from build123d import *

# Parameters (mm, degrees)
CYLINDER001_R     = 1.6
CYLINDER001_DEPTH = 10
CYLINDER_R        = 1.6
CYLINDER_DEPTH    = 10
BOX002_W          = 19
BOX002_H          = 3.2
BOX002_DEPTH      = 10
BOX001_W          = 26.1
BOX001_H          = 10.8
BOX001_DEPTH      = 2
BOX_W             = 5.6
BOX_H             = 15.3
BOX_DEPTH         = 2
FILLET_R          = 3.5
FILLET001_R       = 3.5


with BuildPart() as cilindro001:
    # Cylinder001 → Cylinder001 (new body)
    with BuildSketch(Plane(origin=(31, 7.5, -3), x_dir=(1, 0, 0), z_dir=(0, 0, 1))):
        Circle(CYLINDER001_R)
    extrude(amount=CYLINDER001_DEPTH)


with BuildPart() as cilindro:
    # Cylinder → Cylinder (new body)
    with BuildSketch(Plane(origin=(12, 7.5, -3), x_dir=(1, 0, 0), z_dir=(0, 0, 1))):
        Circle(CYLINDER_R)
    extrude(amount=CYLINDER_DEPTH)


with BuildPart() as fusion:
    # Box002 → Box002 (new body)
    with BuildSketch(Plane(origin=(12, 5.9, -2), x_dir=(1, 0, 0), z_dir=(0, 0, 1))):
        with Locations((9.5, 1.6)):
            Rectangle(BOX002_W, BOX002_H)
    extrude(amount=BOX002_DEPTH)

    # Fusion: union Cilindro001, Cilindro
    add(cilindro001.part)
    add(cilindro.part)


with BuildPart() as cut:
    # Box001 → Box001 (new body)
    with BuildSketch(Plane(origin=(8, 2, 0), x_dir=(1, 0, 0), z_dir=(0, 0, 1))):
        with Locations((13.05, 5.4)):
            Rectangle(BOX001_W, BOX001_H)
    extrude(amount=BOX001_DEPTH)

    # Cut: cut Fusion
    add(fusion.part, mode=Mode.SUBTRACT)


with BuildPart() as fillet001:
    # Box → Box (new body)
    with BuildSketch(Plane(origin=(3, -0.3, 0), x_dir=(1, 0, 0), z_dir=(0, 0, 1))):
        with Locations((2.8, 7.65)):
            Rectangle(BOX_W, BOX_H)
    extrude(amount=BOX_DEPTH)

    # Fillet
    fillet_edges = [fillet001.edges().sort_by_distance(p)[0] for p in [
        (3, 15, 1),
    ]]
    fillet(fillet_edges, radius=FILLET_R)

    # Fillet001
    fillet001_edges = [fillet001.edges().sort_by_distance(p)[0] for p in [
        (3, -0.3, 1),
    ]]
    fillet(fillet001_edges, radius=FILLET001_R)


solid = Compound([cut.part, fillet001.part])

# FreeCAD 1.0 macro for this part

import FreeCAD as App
import Part
import Sketcher
from FreeCAD import Vector
Q = App.Units.Quantity


def edges_at(feature, points):
    """Names of the edges that pass closest to the given points."""
    edges = feature.Shape.Edges
    near = lambda p: min(range(len(edges)), key=lambda i: edges[i].distToShape(Part.Vertex(*p))[0])
    return sorted({f"Edge{near(p) + 1}" for p in points})


def add_polygon(sketch, points):
    """Adds a closed chain of lines whose ends are joined by coincident constraints."""
    first, n = sketch.GeometryCount, len(points)
    for a, b in zip(points, points[1:] + points[:1]):
        sketch.addGeometry(Part.LineSegment(App.Vector(*a, 0), App.Vector(*b, 0)), False)
    for i in range(n):
        sketch.addConstraint(Sketcher.Constraint("Coincident", first + i, 2, first + (i + 1) % n, 1))

doc = App.newDocument("Part")
body = doc.addObject("PartDesign::Body", "Body")

sketch1 = doc.addObject("Sketcher::SketchObject", "Sketch")
body.addObject(sketch1)
sketch1.AttachmentSupport = (doc.XY_Plane, [""])
sketch1.MapMode = "FlatFace"
sketch1.AttachmentOffset = App.Placement(Vector(0, 0, -3), App.Rotation())
sketch1.addGeometry(Part.Circle(Vector(31, 7.5, 0), Vector(0, 0, 1), 1.6), False)
sketch1.addConstraint([
    Sketcher.Constraint("Diameter", 0, Q("3.2 mm")),
    Sketcher.Constraint("DistanceX", -1, 1, 0, 3, Q("31 mm")),
    Sketcher.Constraint("DistanceY", -1, 1, 0, 3, Q("7.5 mm")),
])
pad1 = doc.addObject("PartDesign::Pad", "Pad")
body.addObject(pad1)
pad1.Profile = sketch1
pad1.Length = 10
body2 = doc.addObject("PartDesign::Body", "Body001")

sketch2 = doc.addObject("Sketcher::SketchObject", "Sketch001")
body2.addObject(sketch2)
sketch2.AttachmentSupport = (doc.getObject("XY_Plane001"), [""])
sketch2.MapMode = "FlatFace"
sketch2.AttachmentOffset = App.Placement(Vector(0, 0, -3), App.Rotation())
sketch2.addGeometry(Part.Circle(Vector(12, 7.5, 0), Vector(0, 0, 1), 1.6), False)
sketch2.addConstraint([
    Sketcher.Constraint("Diameter", 0, Q("3.2 mm")),
    Sketcher.Constraint("DistanceX", -1, 1, 0, 3, Q("12 mm")),
    Sketcher.Constraint("DistanceY", -1, 1, 0, 3, Q("7.5 mm")),
])
pad2 = doc.addObject("PartDesign::Pad", "Pad001")
body2.addObject(pad2)
pad2.Profile = sketch2
pad2.Length = 10
body3 = doc.addObject("PartDesign::Body", "Body002")

sketch3 = doc.addObject("Sketcher::SketchObject", "Sketch002")
body3.addObject(sketch3)
sketch3.AttachmentSupport = (doc.getObject("XY_Plane002"), [""])
sketch3.MapMode = "FlatFace"
sketch3.AttachmentOffset = App.Placement(Vector(0, 0, -2), App.Rotation())
add_polygon(sketch3, [(12, 9.1), (12, 5.9), (31, 5.9), (31, 9.1)])
sketch3.addConstraint([
    Sketcher.Constraint("Vertical", 0),
    Sketcher.Constraint("Horizontal", 1),
    Sketcher.Constraint("Vertical", 2),
    Sketcher.Constraint("Horizontal", 3),
    Sketcher.Constraint("DistanceX", 1, 1, 1, 2, Q("19 mm")),
    Sketcher.Constraint("DistanceY", 0, 2, 0, 1, Q("3.2 mm")),
    Sketcher.Constraint("DistanceX", -1, 1, 0, 2, Q("12 mm")),
    Sketcher.Constraint("DistanceY", -1, 1, 0, 2, Q("5.9 mm")),
])
pad3 = doc.addObject("PartDesign::Pad", "Pad002")
body3.addObject(pad3)
pad3.Profile = sketch3
pad3.Length = 10
doc.recompute()

boolean = doc.addObject("PartDesign::Boolean", "Boolean")
body3.addObject(boolean)
boolean.Type = "Fuse"
boolean.addObjects([body])
doc.recompute()

boolean2 = doc.addObject("PartDesign::Boolean", "Boolean001")
body3.addObject(boolean2)
boolean2.Type = "Fuse"
boolean2.addObjects([body2])
body4 = doc.addObject("PartDesign::Body", "Body003")

sketch4 = doc.addObject("Sketcher::SketchObject", "Sketch003")
body4.addObject(sketch4)
sketch4.AttachmentSupport = (doc.getObject("XY_Plane003"), [""])
sketch4.MapMode = "FlatFace"
add_polygon(sketch4, [(8, 13), (8, 2), (34, 2), (34, 13)])
sketch4.addConstraint([
    Sketcher.Constraint("Vertical", 0),
    Sketcher.Constraint("Horizontal", 1),
    Sketcher.Constraint("Vertical", 2),
    Sketcher.Constraint("Horizontal", 3),
    Sketcher.Constraint("DistanceX", 1, 1, 1, 2, Q("26.1 mm")),
    Sketcher.Constraint("DistanceY", 0, 2, 0, 1, Q("10.8 mm")),
    Sketcher.Constraint("DistanceX", -1, 1, 0, 2, Q("8 mm")),
    Sketcher.Constraint("DistanceY", -1, 1, 0, 2, Q("2 mm")),
])
pad4 = doc.addObject("PartDesign::Pad", "Pad003")
body4.addObject(pad4)
pad4.Profile = sketch4
pad4.Length = 2
doc.recompute()

boolean3 = doc.addObject("PartDesign::Boolean", "Boolean002")
body4.addObject(boolean3)
boolean3.Type = "Cut"
boolean3.addObjects([body3])
body5 = doc.addObject("PartDesign::Body", "Body004")

sketch5 = doc.addObject("Sketcher::SketchObject", "Sketch004")
body5.addObject(sketch5)
sketch5.AttachmentSupport = (doc.getObject("XY_Plane004"), [""])
sketch5.MapMode = "FlatFace"
add_polygon(sketch5, [(3, 15), (3, 0), (9, 0), (9, 15)])
sketch5.addConstraint([
    Sketcher.Constraint("Vertical", 0),
    Sketcher.Constraint("Horizontal", 1),
    Sketcher.Constraint("Vertical", 2),
    Sketcher.Constraint("Horizontal", 3),
    Sketcher.Constraint("DistanceX", 1, 1, 1, 2, Q("5.6 mm")),
    Sketcher.Constraint("DistanceY", 0, 2, 0, 1, Q("15.3 mm")),
    Sketcher.Constraint("DistanceX", -1, 1, 0, 2, Q("3 mm")),
    Sketcher.Constraint("DistanceY", -1, 1, 2, 2, Q("15 mm")),
])
pad5 = doc.addObject("PartDesign::Pad", "Pad004")
body5.addObject(pad5)
pad5.Profile = sketch5
pad5.Length = 2
doc.recompute()

fillet = doc.addObject("PartDesign::Fillet", "Fillet")
body5.addObject(fillet)
fillet.Base = (pad5, edges_at(pad5, [(3, 15, 1)]))
fillet.Radius = 3.5
doc.recompute()

fillet2 = doc.addObject("PartDesign::Fillet", "Fillet001")
body5.addObject(fillet2)
fillet2.Base = (fillet, edges_at(fillet, [(3, -0.3, 1)]))
fillet2.Radius = 3.5

doc.recompute()
